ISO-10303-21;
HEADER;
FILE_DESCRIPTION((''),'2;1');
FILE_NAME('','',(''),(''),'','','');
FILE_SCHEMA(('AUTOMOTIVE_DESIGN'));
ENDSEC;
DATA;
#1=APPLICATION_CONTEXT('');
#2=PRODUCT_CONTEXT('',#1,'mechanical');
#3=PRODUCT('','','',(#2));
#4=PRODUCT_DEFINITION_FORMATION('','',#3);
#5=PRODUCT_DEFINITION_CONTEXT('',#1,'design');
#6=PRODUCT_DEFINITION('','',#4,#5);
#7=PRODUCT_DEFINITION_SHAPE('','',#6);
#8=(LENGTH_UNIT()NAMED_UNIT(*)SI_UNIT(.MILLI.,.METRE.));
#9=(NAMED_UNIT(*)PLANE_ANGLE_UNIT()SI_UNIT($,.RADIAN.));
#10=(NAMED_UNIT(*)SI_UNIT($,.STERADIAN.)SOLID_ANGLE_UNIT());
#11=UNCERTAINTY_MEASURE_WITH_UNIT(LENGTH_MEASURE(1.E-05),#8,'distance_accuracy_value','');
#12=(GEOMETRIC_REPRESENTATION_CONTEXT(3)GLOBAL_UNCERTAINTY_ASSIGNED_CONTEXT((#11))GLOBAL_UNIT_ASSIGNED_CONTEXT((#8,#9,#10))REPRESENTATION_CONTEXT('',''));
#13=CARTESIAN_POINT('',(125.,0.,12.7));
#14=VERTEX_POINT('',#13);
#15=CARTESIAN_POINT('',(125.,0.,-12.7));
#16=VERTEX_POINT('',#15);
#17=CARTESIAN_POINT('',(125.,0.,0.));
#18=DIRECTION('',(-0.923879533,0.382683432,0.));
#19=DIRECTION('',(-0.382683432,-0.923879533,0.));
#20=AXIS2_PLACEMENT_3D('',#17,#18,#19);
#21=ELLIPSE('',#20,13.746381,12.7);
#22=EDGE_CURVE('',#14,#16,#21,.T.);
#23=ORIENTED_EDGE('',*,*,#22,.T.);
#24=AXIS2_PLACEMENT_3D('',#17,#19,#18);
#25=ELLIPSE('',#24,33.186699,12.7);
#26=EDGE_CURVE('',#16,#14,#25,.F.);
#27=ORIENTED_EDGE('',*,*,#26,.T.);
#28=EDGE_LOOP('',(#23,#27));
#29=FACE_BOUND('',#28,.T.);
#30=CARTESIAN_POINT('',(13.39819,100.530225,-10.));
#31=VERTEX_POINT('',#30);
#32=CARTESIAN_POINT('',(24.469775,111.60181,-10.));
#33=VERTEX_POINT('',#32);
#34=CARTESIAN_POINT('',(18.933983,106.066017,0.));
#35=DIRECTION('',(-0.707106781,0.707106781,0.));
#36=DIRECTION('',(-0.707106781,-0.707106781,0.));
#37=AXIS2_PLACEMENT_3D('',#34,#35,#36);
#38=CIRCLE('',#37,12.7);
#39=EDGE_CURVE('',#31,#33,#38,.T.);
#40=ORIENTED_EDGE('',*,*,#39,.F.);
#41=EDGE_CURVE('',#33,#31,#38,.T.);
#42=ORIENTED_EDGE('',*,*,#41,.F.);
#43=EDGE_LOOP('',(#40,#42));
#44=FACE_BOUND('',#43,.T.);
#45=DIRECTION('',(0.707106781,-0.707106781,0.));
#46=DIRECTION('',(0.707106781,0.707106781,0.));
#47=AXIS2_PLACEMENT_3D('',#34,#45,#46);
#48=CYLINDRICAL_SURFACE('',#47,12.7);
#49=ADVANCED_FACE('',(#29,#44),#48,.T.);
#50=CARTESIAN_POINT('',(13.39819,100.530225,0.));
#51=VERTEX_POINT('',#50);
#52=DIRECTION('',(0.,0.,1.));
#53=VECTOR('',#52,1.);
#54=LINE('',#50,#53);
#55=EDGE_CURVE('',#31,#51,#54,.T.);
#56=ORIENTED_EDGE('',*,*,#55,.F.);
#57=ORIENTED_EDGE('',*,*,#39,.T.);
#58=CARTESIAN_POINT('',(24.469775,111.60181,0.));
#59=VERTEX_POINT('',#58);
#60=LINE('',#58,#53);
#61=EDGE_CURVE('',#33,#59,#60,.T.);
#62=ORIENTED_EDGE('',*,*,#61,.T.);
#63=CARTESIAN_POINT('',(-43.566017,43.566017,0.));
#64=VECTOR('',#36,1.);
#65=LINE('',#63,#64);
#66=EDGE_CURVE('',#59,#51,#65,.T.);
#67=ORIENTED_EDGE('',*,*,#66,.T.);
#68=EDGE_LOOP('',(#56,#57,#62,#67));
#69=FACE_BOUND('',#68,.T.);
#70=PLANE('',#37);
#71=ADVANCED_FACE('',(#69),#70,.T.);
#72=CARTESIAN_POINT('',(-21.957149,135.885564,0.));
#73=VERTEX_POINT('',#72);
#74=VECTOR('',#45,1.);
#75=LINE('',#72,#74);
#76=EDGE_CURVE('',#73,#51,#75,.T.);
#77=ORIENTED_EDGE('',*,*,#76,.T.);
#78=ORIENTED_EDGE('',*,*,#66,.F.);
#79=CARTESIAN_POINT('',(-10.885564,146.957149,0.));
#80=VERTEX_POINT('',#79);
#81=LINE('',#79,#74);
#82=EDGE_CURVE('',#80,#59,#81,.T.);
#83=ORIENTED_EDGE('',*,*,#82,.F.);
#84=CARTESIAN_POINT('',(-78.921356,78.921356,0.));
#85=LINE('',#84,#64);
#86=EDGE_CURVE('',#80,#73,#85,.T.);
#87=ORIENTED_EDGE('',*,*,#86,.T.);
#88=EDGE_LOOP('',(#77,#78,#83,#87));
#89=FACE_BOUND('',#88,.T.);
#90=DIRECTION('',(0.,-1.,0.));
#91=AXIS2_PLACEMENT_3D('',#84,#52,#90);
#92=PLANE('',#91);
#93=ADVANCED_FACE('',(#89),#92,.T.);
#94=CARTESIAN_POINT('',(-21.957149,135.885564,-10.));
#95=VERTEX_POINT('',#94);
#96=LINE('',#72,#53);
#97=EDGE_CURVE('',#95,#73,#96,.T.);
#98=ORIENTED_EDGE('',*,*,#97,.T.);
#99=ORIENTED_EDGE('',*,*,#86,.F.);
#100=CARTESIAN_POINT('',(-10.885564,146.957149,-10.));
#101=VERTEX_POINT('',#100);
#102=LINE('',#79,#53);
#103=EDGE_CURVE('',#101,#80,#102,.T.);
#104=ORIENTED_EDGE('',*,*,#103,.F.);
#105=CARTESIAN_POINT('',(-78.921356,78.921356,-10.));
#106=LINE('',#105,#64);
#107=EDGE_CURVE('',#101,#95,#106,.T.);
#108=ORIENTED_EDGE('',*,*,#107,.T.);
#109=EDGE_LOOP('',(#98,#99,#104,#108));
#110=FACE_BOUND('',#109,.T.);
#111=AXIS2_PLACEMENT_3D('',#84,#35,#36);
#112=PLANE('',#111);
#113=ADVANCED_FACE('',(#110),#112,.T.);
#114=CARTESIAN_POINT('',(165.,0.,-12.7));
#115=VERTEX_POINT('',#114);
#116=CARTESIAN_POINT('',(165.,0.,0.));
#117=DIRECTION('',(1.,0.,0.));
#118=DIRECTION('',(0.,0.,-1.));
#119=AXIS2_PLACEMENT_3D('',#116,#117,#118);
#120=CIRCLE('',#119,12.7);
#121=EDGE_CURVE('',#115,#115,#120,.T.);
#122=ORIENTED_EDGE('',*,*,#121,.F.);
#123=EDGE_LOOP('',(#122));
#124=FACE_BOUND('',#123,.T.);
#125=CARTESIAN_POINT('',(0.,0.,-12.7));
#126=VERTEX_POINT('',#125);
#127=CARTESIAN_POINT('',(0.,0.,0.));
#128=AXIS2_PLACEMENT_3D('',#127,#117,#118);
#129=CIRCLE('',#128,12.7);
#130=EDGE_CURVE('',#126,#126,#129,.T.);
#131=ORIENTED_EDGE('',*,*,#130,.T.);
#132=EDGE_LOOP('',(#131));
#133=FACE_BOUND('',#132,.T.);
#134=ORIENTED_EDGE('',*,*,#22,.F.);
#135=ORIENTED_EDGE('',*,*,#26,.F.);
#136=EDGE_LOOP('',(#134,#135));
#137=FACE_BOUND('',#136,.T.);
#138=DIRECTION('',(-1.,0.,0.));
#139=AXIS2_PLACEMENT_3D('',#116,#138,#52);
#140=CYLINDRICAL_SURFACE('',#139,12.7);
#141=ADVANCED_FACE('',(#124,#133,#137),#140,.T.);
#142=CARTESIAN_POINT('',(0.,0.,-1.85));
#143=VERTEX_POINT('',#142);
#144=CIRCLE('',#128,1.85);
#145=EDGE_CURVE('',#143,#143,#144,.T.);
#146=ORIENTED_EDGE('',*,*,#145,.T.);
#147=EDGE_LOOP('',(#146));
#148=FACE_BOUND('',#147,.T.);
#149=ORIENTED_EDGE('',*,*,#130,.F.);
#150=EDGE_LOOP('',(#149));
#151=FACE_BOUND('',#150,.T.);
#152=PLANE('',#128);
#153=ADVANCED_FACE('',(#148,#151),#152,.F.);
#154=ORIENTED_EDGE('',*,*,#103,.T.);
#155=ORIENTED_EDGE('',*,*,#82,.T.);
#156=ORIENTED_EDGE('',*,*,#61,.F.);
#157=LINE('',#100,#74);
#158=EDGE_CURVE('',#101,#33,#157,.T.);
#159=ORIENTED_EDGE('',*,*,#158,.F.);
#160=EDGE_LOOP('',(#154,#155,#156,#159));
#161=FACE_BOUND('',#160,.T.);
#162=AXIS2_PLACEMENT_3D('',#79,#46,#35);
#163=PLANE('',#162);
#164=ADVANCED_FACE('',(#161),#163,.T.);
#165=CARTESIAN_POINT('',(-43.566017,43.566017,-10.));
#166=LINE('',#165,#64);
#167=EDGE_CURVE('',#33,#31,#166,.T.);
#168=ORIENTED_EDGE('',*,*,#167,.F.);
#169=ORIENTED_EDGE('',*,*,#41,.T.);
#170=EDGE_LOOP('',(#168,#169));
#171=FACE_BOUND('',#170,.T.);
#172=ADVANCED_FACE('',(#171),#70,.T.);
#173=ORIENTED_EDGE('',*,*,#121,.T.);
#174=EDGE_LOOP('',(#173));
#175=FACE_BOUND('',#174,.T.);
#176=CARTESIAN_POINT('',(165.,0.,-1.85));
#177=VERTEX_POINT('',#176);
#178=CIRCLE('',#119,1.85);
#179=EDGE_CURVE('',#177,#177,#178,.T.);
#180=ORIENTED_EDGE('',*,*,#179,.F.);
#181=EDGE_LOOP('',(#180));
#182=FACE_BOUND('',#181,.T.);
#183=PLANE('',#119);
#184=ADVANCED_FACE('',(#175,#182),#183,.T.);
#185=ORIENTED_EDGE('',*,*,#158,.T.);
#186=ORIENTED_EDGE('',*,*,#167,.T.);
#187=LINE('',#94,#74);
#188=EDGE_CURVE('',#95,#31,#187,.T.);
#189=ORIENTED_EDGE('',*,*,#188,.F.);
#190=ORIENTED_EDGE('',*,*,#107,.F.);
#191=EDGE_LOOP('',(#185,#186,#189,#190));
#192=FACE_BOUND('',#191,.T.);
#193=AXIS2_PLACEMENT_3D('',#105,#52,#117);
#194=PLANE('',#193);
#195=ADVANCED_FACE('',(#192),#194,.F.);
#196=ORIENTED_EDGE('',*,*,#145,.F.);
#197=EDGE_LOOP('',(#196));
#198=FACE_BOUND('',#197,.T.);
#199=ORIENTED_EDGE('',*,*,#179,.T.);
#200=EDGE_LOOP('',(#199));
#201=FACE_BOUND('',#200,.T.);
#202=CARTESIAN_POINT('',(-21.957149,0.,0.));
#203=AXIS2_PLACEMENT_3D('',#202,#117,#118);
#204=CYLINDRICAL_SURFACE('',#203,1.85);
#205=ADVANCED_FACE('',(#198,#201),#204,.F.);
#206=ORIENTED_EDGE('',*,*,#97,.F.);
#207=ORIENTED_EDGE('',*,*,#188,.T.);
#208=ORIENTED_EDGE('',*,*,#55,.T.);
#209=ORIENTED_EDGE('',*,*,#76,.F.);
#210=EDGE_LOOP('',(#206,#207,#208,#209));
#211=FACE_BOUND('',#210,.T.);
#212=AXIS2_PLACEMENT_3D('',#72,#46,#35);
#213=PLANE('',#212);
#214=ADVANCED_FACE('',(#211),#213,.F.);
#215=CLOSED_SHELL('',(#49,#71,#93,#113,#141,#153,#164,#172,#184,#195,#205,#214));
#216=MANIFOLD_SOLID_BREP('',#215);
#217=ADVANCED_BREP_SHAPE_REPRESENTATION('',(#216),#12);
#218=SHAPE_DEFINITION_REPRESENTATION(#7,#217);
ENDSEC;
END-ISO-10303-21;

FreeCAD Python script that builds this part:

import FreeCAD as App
import Part
import Sketcher
from FreeCAD import Vector


def add_polygon(sketch, points):
    """Adds a closed chain of lines whose ends are joined by coincident constraints."""
    first, n = sketch.GeometryCount, len(points)
    for a, b in zip(points, points[1:] + points[:1]):
        sketch.addGeometry(Part.LineSegment(App.Vector(*a, 0), App.Vector(*b, 0)), False)
    for i in range(n):
        sketch.addConstraint(Sketcher.Constraint("Coincident", first + i, 2, first + (i + 1) % n, 1))

doc = App.newDocument("Part")
params = doc.addObject("Spreadsheet::Sheet", "Params")
for row, (alias, value) in enumerate([
    ("sketch1_diameter", "25.4 mm"),
    ("pad1_length", "165 mm"),
    ("sketch2_diameter", "25.4 mm"),
    ("pad2_length", "150 mm"),
    ("sketch3_width", "10 mm"),
    ("pad3_length", "50 mm"),
    ("sketch4_diameter", "3.7 mm"),
], start=1):
    params.set(f"A{row}", alias)
    params.set(f"B{row}", "=" + value)
    params.setAlias(f"B{row}", alias)

body = doc.addObject("PartDesign::Body", "Body")

sketch1 = body.newObject("Sketcher::SketchObject", "Sketch")
sketch1.AttachmentSupport = (doc.getObject("YZ_Plane"), [""])
sketch1.MapMode = "FlatFace"
sketch1.addGeometry(Part.Circle(Vector(0, 0, 0), Vector(0, 0, 1), 13), False)
sketch1.addConstraint(Sketcher.Constraint("Coincident", 0, 3, -1, 1))
sketch1.addConstraint(Sketcher.Constraint("Diameter", 0, 25.4))
sketch1.setExpression("Constraints[1]", "Params.sketch1_diameter")
pad1 = body.newObject("PartDesign::Pad", "Pad")
pad1.Profile = sketch1
pad1.setExpression("Length", "Params.pad1_length")

sketch2 = body.newObject("Sketcher::SketchObject", "Sketch001")
sketch2.Placement = App.Placement(Vector(62.5, -62.5, 0), App.Rotation(Vector(0.707106781, 0.707106781, 0), Vector(0, 0, -0.999999999), Vector(-0.707106781, 0.707106781, 0), "ZXY"))
sketch2.addGeometry(Part.Circle(Vector(88, 0, 0), Vector(0, 0, 1), 13), False)
sketch2.addConstraint(Sketcher.Constraint("PointOnObject", 0, 3, -1))
sketch2.addConstraint(Sketcher.Constraint("Diameter", 0, 25.4))
sketch2.addConstraint(Sketcher.Constraint("DistanceX", -1, 1, 0, 3, 88.388348))
sketch2.setExpression("Constraints[1]", "Params.sketch2_diameter")
pad2 = body.newObject("PartDesign::Pad", "Pad001")
pad2.Profile = sketch2
pad2.setExpression("Length", "Params.pad2_length")

sketch3 = body.newObject("Sketcher::SketchObject", "Sketch002")
sketch3.Placement = App.Placement(Vector(-43.566017, 43.566017, 0), App.Rotation(Vector(0, 0, 1), Vector(0.707106781, 0.707106781, 0), Vector(-0.707106781, 0.707106781, 0), "ZXY"))
add_polygon(sketch3, [(-10, 96), (-10, 81), (0, 81), (0, 96)])
sketch3.addConstraint(Sketcher.Constraint("Vertical", 0))
sketch3.addConstraint(Sketcher.Constraint("Horizontal", 1))
sketch3.addConstraint(Sketcher.Constraint("Vertical", 2))
sketch3.addConstraint(Sketcher.Constraint("Horizontal", 3))
sketch3.addConstraint(Sketcher.Constraint("PointOnObject", 1, 2, -2))
sketch3.addConstraint(Sketcher.Constraint("DistanceX", 1, 1, 1, 2, 10.0))
sketch3.addConstraint(Sketcher.Constraint("DistanceY", 0, 2, 0, 1, 15.657586))
sketch3.addConstraint(Sketcher.Constraint("DistanceY", -1, 1, 2, 2, 96.217141))
sketch3.setExpression("Constraints[9]", "Params.sketch3_width")
pad3 = body.newObject("PartDesign::Pad", "Pad002")
pad3.Profile = sketch3
pad3.setExpression("Length", "Params.pad3_length")

sketch4 = body.newObject("Sketcher::SketchObject", "Sketch003")
sketch4.AttachmentSupport = (doc.getObject("YZ_Plane"), [""])
sketch4.MapMode = "FlatFace"
sketch4.AttachmentOffset = App.Placement(Vector(0, 0, 165), App.Rotation())
sketch4.addGeometry(Part.Circle(Vector(0, 0, 0), Vector(0, 0, 1), 1.9), False)
sketch4.addConstraint(Sketcher.Constraint("Coincident", 0, 3, -1, 1))
sketch4.addConstraint(Sketcher.Constraint("Diameter", 0, 3.7))
sketch4.setExpression("Constraints[1]", "Params.sketch4_diameter")
pocket1 = body.newObject("PartDesign::Pocket", "Pocket")
pocket1.Profile = sketch4
pocket1.Type = "ThroughAll"

doc.recompute()
